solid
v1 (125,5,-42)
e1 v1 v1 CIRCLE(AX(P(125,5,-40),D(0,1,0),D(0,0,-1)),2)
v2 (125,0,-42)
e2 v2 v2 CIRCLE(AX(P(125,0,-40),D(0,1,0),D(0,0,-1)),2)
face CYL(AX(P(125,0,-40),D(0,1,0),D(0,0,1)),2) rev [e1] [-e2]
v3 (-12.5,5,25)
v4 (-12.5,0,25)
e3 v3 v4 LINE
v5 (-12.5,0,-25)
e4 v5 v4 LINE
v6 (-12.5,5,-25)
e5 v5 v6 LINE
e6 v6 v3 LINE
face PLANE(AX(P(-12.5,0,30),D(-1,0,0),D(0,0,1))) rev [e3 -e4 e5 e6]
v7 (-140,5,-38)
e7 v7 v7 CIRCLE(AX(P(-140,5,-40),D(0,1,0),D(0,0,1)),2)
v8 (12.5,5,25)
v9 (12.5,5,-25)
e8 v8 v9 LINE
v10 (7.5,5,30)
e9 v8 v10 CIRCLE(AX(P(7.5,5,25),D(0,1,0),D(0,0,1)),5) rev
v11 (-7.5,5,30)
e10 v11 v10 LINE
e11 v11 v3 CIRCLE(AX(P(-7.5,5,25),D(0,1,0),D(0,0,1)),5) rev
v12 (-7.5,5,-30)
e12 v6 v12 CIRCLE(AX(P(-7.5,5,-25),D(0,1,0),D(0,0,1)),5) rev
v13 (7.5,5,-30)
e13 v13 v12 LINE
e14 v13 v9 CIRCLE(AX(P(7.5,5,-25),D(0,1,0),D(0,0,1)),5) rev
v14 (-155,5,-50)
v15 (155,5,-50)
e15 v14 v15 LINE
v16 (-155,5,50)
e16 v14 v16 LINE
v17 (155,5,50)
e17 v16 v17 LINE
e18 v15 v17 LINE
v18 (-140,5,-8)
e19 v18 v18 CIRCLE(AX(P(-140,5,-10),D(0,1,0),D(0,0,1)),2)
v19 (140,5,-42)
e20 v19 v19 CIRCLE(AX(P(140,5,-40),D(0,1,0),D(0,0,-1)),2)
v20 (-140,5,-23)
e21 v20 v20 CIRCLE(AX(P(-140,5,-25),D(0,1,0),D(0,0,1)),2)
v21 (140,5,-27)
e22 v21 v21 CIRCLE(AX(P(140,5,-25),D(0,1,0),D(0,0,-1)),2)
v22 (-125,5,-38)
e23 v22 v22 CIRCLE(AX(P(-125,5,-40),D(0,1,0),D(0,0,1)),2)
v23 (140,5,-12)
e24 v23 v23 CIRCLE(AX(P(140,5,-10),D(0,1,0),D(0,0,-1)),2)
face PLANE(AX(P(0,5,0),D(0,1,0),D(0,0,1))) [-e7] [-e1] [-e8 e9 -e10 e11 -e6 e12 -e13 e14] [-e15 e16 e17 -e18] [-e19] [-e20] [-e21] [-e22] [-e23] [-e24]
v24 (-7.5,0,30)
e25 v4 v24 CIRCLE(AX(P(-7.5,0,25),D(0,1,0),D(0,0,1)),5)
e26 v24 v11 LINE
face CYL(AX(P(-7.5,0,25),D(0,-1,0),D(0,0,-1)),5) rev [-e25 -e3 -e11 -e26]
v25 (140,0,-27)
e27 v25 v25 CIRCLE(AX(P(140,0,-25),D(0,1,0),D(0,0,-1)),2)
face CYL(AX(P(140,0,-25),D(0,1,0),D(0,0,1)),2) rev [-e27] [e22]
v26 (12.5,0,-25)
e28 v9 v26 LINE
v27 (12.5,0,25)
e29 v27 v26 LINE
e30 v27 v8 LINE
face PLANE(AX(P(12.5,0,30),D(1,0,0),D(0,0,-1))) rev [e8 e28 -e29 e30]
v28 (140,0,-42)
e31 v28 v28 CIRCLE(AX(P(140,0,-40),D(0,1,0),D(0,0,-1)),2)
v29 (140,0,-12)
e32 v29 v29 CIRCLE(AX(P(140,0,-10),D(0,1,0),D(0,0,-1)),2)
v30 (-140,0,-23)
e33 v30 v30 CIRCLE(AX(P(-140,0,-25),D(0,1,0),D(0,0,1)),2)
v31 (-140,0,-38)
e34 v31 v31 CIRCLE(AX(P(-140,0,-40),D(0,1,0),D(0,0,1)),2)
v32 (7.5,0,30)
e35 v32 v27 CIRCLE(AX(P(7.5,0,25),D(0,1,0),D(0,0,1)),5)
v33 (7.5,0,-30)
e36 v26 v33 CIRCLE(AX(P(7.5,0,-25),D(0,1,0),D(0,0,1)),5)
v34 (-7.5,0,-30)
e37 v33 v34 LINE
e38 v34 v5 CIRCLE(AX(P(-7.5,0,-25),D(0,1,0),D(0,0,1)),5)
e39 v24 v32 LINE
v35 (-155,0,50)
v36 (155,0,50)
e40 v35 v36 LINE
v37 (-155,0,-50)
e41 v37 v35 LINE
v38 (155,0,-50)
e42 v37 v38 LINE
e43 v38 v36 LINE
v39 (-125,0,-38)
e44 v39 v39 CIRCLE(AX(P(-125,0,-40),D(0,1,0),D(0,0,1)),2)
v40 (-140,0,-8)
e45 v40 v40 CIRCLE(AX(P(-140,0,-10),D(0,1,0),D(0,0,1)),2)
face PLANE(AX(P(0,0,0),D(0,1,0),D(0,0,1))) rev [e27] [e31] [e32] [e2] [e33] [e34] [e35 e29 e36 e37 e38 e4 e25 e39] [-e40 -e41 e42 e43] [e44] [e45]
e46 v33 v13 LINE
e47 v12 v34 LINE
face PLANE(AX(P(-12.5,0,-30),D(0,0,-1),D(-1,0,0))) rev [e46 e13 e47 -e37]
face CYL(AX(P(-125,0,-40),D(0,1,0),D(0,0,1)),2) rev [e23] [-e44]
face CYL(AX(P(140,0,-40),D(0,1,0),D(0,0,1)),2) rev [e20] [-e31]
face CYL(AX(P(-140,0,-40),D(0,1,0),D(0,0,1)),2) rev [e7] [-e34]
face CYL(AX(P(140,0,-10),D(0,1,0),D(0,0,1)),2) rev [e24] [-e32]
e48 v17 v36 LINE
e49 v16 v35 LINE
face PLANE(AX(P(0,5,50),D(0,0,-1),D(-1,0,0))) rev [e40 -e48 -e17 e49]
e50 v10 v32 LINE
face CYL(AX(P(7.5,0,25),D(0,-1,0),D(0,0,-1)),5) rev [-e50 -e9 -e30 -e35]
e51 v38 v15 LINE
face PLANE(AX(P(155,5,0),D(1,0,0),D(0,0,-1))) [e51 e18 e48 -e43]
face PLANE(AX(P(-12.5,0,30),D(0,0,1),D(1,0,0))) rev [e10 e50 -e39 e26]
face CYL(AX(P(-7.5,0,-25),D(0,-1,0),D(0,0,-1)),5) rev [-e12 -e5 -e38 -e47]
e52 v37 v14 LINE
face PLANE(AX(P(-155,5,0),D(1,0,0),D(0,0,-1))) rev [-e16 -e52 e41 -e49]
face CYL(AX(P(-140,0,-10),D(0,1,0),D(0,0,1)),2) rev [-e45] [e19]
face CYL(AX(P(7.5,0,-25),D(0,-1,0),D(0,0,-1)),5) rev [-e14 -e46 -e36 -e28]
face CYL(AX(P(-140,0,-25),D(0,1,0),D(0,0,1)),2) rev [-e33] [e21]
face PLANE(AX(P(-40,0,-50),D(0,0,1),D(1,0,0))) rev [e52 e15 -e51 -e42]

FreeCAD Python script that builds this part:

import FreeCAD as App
import Part
import Sketcher
from FreeCAD import Vector


def edges_at(feature, points):
    """Names of the edges that pass closest to the given points."""
    edges = feature.Shape.Edges
    near = lambda p: min(range(len(edges)), key=lambda i: edges[i].distToShape(Part.Vertex(*p))[0])
    return sorted({f"Edge{near(p) + 1}" for p in points})


def add_polygon(sketch, points):
    """Adds a closed chain of lines whose ends are joined by coincident constraints."""
    first, n = sketch.GeometryCount, len(points)
    for a, b in zip(points, points[1:] + points[:1]):
        sketch.addGeometry(Part.LineSegment(App.Vector(*a, 0), App.Vector(*b, 0)), False)
    for i in range(n):
        sketch.addConstraint(Sketcher.Constraint("Coincident", first + i, 2, first + (i + 1) % n, 1))

doc = App.newDocument("Part")
body = doc.addObject("PartDesign::Body", "Body")

# Sketch on XZ plane
sketch1 = body.newObject("Sketcher::SketchObject", "Sketch")
sketch1.AttachmentSupport = (doc.getObject("XZ_Plane"), [""])
sketch1.MapMode = "FlatFace"
add_polygon(sketch1, [(-60, -145), (-60, -50), (-155, -50), (-155, 50), (155, 50), (155, -50), (60, -50), (60, -145)])  # lines 0-7
sketch1.addConstraint([
    Sketcher.Constraint("Vertical", 0),
    Sketcher.Constraint("Horizontal", 1),
    Sketcher.Constraint("Vertical", 2),
    Sketcher.Constraint("Horizontal", 3),
    Sketcher.Constraint("Vertical", 4),
    Sketcher.Constraint("Horizontal", 5),
    Sketcher.Constraint("Vertical", 6),
    Sketcher.Constraint("Horizontal", 7),
    Sketcher.Constraint("Symmetric", 1, 2, 3, 2, -1, 1),
    Sketcher.Constraint("Symmetric", 0, 2, 5, 2, -2),
    Sketcher.Constraint("Equal", 5, 0),
    Sketcher.Constraint("DistanceX", 1, 2, 1, 1, 95.0),
    Sketcher.Constraint("DistanceX", 3, 1, 3, 2, 310.0),
    Sketcher.Constraint("DistanceY", 2, 1, 2, 2, 100.0),
])
pad1 = body.newObject("PartDesign::Pad", "Pad")
pad1.Profile = sketch1
pad1.Length = 5
pad1.Reversed = True

# Sketch on XZ plane
sketch2 = body.newObject("Sketcher::SketchObject", "Sketch001")
sketch2.AttachmentSupport = (doc.getObject("XZ_Plane"), [""])
sketch2.MapMode = "FlatFace"
sketch2.AttachmentOffset = App.Placement(Vector(0, 0, -5), App.Rotation())
sketch2.addGeometry(Part.Circle(Vector(-140, -40, 0), Vector(0, 0, 1), 2), False)  # 0
sketch2.addGeometry(Part.Circle(Vector(-125, -40, 0), Vector(0, 0, 1), 2), False)  # 1
sketch2.addGeometry(Part.Circle(Vector(-140, -25, 0), Vector(0, 0, 1), 2), False)  # 2
sketch2.addGeometry(Part.Circle(Vector(-140, -10, 0), Vector(0, 0, 1), 2), False)  # 3
sketch2.addGeometry(Part.Circle(Vector(140, -10, 0), Vector(0, 0, 1), 2), False)  # 4
sketch2.addGeometry(Part.Circle(Vector(140, -25, 0), Vector(0, 0, 1), 2), False)  # 5
sketch2.addGeometry(Part.Circle(Vector(125, -40, 0), Vector(0, 0, 1), 2), False)  # 6
sketch2.addGeometry(Part.Circle(Vector(140, -40, 0), Vector(0, 0, 1), 2), False)  # 7
sketch2.addGeometry(Part.Circle(Vector(-50, -130, 0), Vector(0, 0, 1), 2), False)  # 8
sketch2.addGeometry(Part.Circle(Vector(50, -130, 0), Vector(0, 0, 1), 2), False)  # 9
add_polygon(sketch2, [(-12.5, -30), (-12.5, 30), (12.5, 30), (12.5, -30)])  # lines 10-13
sketch2.addConstraint([
    Sketcher.Constraint("Vertical", 10),
    Sketcher.Constraint("Horizontal", 11),
    Sketcher.Constraint("Vertical", 12),
    Sketcher.Constraint("Horizontal", 13),
    Sketcher.Constraint("Equal", 0, 1),
    Sketcher.Constraint("Equal", 1, 2),
    Sketcher.Constraint("Equal", 2, 3),
    Sketcher.Constraint("Equal", 3, 4),
    Sketcher.Constraint("Equal", 4, 5),
    Sketcher.Constraint("Equal", 5, 6),
    Sketcher.Constraint("Equal", 6, 7),
    Sketcher.Constraint("Equal", 7, 8),
    Sketcher.Constraint("Equal", 8, 9),
    Sketcher.Constraint("Symmetric", 10, 2, 12, 2, -1, 1),
    Sketcher.Constraint("Symmetric", 3, 3, 4, 3, -2),
    Sketcher.Constraint("Symmetric", 2, 3, 5, 3, -2),
    Sketcher.Constraint("Symmetric", 1, 3, 6, 3, -2),
    Sketcher.Constraint("Symmetric", 0, 3, 7, 3, -2),
    Sketcher.Constraint("Symmetric", 8, 3, 9, 3, -2),
    Sketcher.Constraint("Horizontal", 0, 3, 1, 3),
    Sketcher.Constraint("Vertical", 0, 3, 2, 3),
    Sketcher.Constraint("Vertical", 2, 3, 3, 3),
    Sketcher.Constraint("Diameter", 0, 4.0),
    Sketcher.Constraint("DistanceX", 11, 1, 11, 2, 25.0),
    Sketcher.Constraint("DistanceY", 10, 1, 10, 2, 60.0),
    Sketcher.Constraint("DistanceX", 0, 3, -1, 1, 140.0),
    Sketcher.Constraint("DistanceY", 0, 3, -1, 1, 40.0),
    Sketcher.Constraint("DistanceX", 1, 3, -1, 1, 125.0),
    Sketcher.Constraint("DistanceY", 2, 3, -1, 1, 25.0),
    Sketcher.Constraint("DistanceY", 3, 3, -1, 1, 10.0),
    Sketcher.Constraint("DistanceX", 8, 3, -1, 1, 50.0),
    Sketcher.Constraint("DistanceY", 8, 3, -1, 1, 130.0),
])
pocket1 = body.newObject("PartDesign::Pocket", "Pocket")
pocket1.Profile = sketch2
pocket1.Type = "ThroughAll"
pocket1.Reversed = True
doc.recompute()

fillet = body.newObject("PartDesign::Fillet", "Fillet")
fillet.Base = (pocket1, edges_at(pocket1, [
    (12.5, 2.5, -30),
    (12.5, 2.5, 30),
    (-12.5, 2.5, 30),
    (-12.5, 2.5, -30),
]))
fillet.Radius = 5

# Sketch on XZ plane
sketch3 = body.newObject("Sketcher::SketchObject", "Sketch002")
sketch3.AttachmentSupport = (doc.getObject("XZ_Plane"), [""])
sketch3.MapMode = "FlatFace"
sketch3.AttachmentOffset = App.Placement(Vector(0, 0, -5), App.Rotation())
add_polygon(sketch3, [(-40, -120), (-40, -50), (40, -50), (40, -120)])  # lines 0-3
sketch3.addConstraint([
    Sketcher.Constraint("Vertical", 0),
    Sketcher.Constraint("Horizontal", 1),
    Sketcher.Constraint("Vertical", 2),
    Sketcher.Constraint("Horizontal", 3),
    Sketcher.Constraint("DistanceX", 1, 1, 1, 2, 80.0),
    Sketcher.Constraint("DistanceY", 0, 1, 0, 2, 70.0),
    Sketcher.Constraint("DistanceX", 0, 2, -1, 1, 40.0),
    Sketcher.Constraint("DistanceY", 0, 2, -1, 1, 50.0),
])
pocket2 = body.newObject("PartDesign::Pocket", "Pocket001")
pocket2.Profile = sketch3
pocket2.Length = 5
pocket2.Reversed = True
doc.recompute()

chamfer = body.newObject("PartDesign::Chamfer", "Chamfer")
chamfer.Base = (pocket2, edges_at(pocket2, [
    (40, 2.5, -50),
    (-40, 2.5, -50),
    (-40, 2.5, -120),
    (40, 2.5, -120),
]))
chamfer.Size = 20

# Sketch on XZ plane
sketch4 = body.newObject("Sketcher::SketchObject", "Sketch003")
sketch4.AttachmentSupport = (doc.getObject("XZ_Plane"), [""])
sketch4.MapMode = "FlatFace"
sketch4.AttachmentOffset = App.Placement(Vector(0, 0, -5), App.Rotation())
add_polygon(sketch4, [(60, -145), (60, -50), (155, -50), (155, -145)])  # lines 0-3
add_polygon(sketch4, [(-155, -145), (-155, -50), (-60, -50), (-60, -145)])  # lines 4-7
sketch4.addConstraint([
    Sketcher.Constraint("Vertical", 0),
    Sketcher.Constraint("Horizontal", 1),
    Sketcher.Constraint("Vertical", 2),
    Sketcher.Constraint("Horizontal", 3),
    Sketcher.Constraint("Vertical", 4),
    Sketcher.Constraint("Horizontal", 5),
    Sketcher.Constraint("Vertical", 6),
    Sketcher.Constraint("Horizontal", 7),
    Sketcher.Constraint("Symmetric", 1, 2, 4, 2, -2),
    Sketcher.Constraint("Symmetric", 3, 2, 6, 2, -2),
    Sketcher.Constraint("Equal", 7, 0),
    Sketcher.Constraint("DistanceX", 1, 1, 1, 2, 95.0),
    Sketcher.Constraint("DistanceX", -1, 1, 0, 2, 60.0),
    Sketcher.Constraint("DistanceY", 0, 2, -1, 1, 50.0),
])
pad2 = body.newObject("PartDesign::Pad", "Pad001")
pad2.Profile = sketch4
pad2.Length = 5

# Sketch on XZ plane
sketch5 = body.newObject("Sketcher::SketchObject", "Sketch004")
sketch5.AttachmentSupport = (doc.getObject("XZ_Plane"), [""])
sketch5.MapMode = "FlatFace"
sketch5.AttachmentOffset = App.Placement(Vector(0, 0, -5), App.Rotation())
add_polygon(sketch5, [(-155, -145), (-155, -50), (155, -50), (155, -145)])  # lines 0-3
sketch5.addConstraint([
    Sketcher.Constraint("Vertical", 0),
    Sketcher.Constraint("Horizontal", 1),
    Sketcher.Constraint("Vertical", 2),
    Sketcher.Constraint("Horizontal", 3),
    Sketcher.Constraint("DistanceX", 1, 1, 1, 2, 310.0),
    Sketcher.Constraint("DistanceY", 0, 1, 0, 2, 95.0),
    Sketcher.Constraint("DistanceX", 0, 2, -1, 1, 155.0),
    Sketcher.Constraint("DistanceY", 0, 2, -1, 1, 50.0),
])
pocket3 = body.newObject("PartDesign::Pocket", "Pocket002")
pocket3.Profile = sketch5
pocket3.Type = "ThroughAll"
pocket3.Reversed = True

doc.recompute()
